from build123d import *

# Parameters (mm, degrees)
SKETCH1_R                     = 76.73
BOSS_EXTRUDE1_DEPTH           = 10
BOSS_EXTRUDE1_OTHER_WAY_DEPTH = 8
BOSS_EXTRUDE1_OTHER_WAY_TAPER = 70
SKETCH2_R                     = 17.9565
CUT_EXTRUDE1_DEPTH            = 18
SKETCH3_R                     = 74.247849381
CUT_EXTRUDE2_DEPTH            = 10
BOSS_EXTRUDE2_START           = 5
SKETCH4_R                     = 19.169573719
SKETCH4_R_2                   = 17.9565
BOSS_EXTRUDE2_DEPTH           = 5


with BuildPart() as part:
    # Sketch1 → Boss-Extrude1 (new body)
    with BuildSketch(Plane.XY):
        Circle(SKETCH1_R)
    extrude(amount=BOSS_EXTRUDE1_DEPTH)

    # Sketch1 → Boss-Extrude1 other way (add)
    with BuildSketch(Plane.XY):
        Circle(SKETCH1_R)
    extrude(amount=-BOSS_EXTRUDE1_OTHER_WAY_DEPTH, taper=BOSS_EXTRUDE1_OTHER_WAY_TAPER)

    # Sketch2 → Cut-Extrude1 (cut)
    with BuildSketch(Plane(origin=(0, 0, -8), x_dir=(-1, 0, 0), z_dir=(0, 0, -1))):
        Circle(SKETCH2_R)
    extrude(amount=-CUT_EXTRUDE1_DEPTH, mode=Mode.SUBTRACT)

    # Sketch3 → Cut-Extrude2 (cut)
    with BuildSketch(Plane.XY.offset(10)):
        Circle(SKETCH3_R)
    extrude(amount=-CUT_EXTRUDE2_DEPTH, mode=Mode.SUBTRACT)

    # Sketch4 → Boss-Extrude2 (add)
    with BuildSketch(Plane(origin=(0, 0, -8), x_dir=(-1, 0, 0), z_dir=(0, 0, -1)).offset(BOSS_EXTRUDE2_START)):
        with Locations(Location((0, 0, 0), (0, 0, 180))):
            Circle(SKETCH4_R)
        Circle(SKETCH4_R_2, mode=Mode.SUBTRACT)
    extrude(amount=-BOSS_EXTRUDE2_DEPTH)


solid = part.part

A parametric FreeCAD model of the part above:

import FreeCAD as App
import Part
import Sketcher

V = App.Vector

doc = App.newDocument("Part")
body = doc.addObject("PartDesign::Body", "Body")

# Sketch on XY plane
sketch1 = doc.addObject("Sketcher::SketchObject", "Sketch")
body.addObject(sketch1)
sketch1.AttachmentSupport = (doc.XY_Plane, [""])
sketch1.MapMode = "FlatFace"
sketch1.addGeometry(Part.Circle(V(0, 0, 0), V(0, 0, 1), 77), False)
sketch1.addConstraint(Sketcher.Constraint("Coincident", 0, 3, -1, 1))
sketch1.addConstraint(Sketcher.Constraint("Diameter", 0, 153.46))
pad1 = doc.addObject("PartDesign::Pad", "Pad")
body.addObject(pad1)
pad1.Profile = sketch1
pad1.Length = 10

# Sketch on XY plane
sketch2 = doc.addObject("Sketcher::SketchObject", "Sketch001")
body.addObject(sketch2)
sketch2.AttachmentSupport = (doc.XY_Plane, [""])
sketch2.MapMode = "FlatFace"
sketch2.addGeometry(Part.Circle(V(0, 0, 0), V(0, 0, 1), 77), False)
sketch2.addConstraint(Sketcher.Constraint("Coincident", 0, 3, -1, 1))
sketch2.addConstraint(Sketcher.Constraint("Diameter", 0, 153.46))
pad2 = doc.addObject("PartDesign::Pad", "Pad001")
body.addObject(pad2)
pad2.Profile = sketch2
pad2.Length = 8
pad2.Reversed = True
pad2.TaperAngle = -70

# Sketch on XY plane
sketch3 = doc.addObject("Sketcher::SketchObject", "Sketch002")
body.addObject(sketch3)
sketch3.AttachmentSupport = (doc.XY_Plane, [""])
sketch3.MapMode = "FlatFace"
sketch3.AttachmentOffset = App.Placement(V(0, 0, -8), App.Rotation())
sketch3.addGeometry(Part.Circle(V(0, 0, 0), V(0, 0, 1), 18), False)
sketch3.addConstraint(Sketcher.Constraint("Coincident", 0, 3, -1, 1))
sketch3.addConstraint(Sketcher.Constraint("Diameter", 0, 35.913))
pocket1 = doc.addObject("PartDesign::Pocket", "Pocket")
body.addObject(pocket1)
pocket1.Profile = sketch3
pocket1.Length = 18
pocket1.Reversed = True

# Sketch on XY plane
sketch4 = doc.addObject("Sketcher::SketchObject", "Sketch003")
body.addObject(sketch4)
sketch4.AttachmentSupport = (doc.XY_Plane, [""])
sketch4.MapMode = "FlatFace"
sketch4.AttachmentOffset = App.Placement(V(0, 0, 10), App.Rotation())
sketch4.addGeometry(Part.Circle(V(0, 0, 0), V(0, 0, 1), 74), False)
sketch4.addConstraint(Sketcher.Constraint("Coincident", 0, 3, -1, 1))
sketch4.addConstraint(Sketcher.Constraint("Diameter", 0, 148.495699))
pocket2 = doc.addObject("PartDesign::Pocket", "Pocket001")
body.addObject(pocket2)
pocket2.Profile = sketch4
pocket2.Length = 10

# Sketch on XY plane
sketch5 = doc.addObject("Sketcher::SketchObject", "Sketch004")
body.addObject(sketch5)
sketch5.AttachmentSupport = (doc.XY_Plane, [""])
sketch5.MapMode = "FlatFace"
sketch5.AttachmentOffset = App.Placement(V(0, 0, -13), App.Rotation())
sketch5.addGeometry(Part.Circle(V(0, 0, 0), V(0, 0, 1), 19), False)
sketch5.addGeometry(Part.Circle(V(0, 0, 0), V(0, 0, 1), 18), False)
sketch5.addConstraint(Sketcher.Constraint("Coincident", 0, 3, -1, 1))
sketch5.addConstraint(Sketcher.Constraint("Coincident", 1, 3, -1, 1))
sketch5.addConstraint(Sketcher.Constraint("Diameter", 1, 35.913))
sketch5.addConstraint(Sketcher.Constraint("Diameter", 0, 38.339147))
pad3 = doc.addObject("PartDesign::Pad", "Pad002")
body.addObject(pad3)
pad3.Profile = sketch5
pad3.Length = 5

doc.recompute()
